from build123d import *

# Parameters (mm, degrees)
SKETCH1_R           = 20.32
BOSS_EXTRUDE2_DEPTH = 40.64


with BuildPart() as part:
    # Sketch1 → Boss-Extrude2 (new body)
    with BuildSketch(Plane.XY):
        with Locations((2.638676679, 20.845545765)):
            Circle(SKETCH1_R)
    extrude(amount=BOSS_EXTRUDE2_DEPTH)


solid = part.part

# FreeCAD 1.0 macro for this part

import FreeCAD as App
import Part
import Sketcher
from FreeCAD import Vector
Q = App.Units.Quantity

doc = App.newDocument("Part")
body = doc.addObject("PartDesign::Body", "Body")

# Sketch on XY plane
sketch1 = doc.addObject("Sketcher::SketchObject", "Sketch")
body.addObject(sketch1)
sketch1.AttachmentSupport = (doc.XY_Plane, [""])
sketch1.MapMode = "FlatFace"
sketch1.addGeometry(Part.Circle(Vector(2.638677, 20.845546, 0), Vector(0, 0, 1), 20.32), False)
sketch1.addConstraint([
    Sketcher.Constraint("Diameter", 0, Q("1.6 in")),
    Sketcher.Constraint("DistanceX", -1, 1, 0, 3, Q("2.638677 mm")),
    Sketcher.Constraint("DistanceY", -1, 1, 0, 3, Q("20.845546 mm")),
])
pad1 = doc.addObject("PartDesign::Pad", "Pad")
body.addObject(pad1)
pad1.Profile = sketch1
pad1.Length = Q("1.6 in")

doc.recompute()
